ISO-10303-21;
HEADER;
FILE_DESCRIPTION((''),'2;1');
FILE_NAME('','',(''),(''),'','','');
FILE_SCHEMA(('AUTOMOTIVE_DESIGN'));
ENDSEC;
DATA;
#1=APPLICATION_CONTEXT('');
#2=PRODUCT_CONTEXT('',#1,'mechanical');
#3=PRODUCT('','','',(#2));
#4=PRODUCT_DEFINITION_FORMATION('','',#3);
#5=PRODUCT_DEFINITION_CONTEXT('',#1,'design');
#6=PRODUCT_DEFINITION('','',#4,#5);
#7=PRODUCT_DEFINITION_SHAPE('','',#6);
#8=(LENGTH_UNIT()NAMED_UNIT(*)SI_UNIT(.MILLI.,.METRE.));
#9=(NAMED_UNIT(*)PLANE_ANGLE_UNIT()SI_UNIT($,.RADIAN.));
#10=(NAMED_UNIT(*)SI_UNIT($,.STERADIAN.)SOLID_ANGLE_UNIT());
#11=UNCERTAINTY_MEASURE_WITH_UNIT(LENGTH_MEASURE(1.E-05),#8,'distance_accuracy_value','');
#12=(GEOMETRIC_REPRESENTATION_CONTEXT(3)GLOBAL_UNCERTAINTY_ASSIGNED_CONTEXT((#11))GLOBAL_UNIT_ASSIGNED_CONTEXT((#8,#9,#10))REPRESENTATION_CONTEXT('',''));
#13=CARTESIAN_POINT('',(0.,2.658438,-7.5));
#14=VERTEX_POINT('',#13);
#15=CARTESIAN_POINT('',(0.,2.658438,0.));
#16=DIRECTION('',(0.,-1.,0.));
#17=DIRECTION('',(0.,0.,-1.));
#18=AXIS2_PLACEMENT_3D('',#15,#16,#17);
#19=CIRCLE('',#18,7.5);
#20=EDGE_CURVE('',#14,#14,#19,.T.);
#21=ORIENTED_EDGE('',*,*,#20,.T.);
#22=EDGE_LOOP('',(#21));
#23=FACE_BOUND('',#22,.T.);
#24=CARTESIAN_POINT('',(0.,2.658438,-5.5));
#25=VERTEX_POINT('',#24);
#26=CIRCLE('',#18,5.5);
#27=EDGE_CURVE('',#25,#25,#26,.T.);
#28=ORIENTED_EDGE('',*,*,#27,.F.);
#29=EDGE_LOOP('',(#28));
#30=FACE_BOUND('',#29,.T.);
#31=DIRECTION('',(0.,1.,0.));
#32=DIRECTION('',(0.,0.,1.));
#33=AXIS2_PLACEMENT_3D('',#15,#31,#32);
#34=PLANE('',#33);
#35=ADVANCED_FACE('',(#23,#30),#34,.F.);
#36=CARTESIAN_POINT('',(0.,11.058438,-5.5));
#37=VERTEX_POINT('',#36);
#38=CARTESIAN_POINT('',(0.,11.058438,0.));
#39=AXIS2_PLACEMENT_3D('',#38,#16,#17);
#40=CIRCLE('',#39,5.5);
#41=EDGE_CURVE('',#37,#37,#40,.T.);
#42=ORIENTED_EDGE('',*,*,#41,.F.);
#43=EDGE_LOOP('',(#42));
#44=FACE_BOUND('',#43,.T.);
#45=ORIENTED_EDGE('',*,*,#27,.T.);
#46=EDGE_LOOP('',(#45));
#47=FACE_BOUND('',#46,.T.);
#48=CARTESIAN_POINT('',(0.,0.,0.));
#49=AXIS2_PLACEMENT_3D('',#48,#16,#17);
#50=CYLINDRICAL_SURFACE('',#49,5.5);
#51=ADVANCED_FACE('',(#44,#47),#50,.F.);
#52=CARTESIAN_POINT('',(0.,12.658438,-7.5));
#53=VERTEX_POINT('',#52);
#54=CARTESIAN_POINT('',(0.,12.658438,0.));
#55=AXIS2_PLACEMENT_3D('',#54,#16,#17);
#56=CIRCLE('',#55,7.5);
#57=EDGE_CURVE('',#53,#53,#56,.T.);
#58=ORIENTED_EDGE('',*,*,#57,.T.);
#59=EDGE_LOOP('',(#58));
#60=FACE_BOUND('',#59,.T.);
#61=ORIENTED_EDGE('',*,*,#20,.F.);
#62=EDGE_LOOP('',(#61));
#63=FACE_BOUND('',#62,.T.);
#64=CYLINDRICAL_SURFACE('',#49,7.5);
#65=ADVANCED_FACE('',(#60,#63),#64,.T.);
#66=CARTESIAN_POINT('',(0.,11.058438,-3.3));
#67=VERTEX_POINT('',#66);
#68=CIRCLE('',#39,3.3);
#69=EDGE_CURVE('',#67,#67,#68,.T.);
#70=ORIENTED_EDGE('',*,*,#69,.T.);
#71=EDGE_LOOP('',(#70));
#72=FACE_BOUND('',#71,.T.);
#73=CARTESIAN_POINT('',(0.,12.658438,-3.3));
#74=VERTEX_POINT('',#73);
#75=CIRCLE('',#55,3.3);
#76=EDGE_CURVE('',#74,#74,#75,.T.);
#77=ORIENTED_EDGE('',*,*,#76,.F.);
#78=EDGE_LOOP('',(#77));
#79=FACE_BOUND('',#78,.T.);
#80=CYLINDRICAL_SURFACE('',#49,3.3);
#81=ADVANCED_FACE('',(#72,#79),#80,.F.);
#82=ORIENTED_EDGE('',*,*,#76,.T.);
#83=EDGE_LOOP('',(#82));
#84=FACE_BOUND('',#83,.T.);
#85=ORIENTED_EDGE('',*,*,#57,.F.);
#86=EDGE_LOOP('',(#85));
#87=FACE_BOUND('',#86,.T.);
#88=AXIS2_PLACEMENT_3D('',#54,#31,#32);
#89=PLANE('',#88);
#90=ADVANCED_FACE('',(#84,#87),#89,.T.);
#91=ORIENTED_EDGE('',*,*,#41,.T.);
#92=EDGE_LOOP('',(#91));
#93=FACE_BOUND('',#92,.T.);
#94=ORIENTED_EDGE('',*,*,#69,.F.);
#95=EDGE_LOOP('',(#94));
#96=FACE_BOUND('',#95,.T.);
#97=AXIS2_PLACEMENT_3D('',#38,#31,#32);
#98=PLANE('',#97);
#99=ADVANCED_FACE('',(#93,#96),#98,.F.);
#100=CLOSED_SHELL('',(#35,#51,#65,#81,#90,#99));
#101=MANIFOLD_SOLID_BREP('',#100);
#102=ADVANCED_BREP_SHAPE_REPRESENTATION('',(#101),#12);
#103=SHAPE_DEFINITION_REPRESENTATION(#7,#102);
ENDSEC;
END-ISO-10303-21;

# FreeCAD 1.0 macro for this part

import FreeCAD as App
import Part
import Sketcher
from FreeCAD import Vector


def add_polygon(sketch, points):
    """Adds a closed chain of lines whose ends are joined by coincident constraints."""
    first, n = sketch.GeometryCount, len(points)
    for a, b in zip(points, points[1:] + points[:1]):
        sketch.addGeometry(Part.LineSegment(App.Vector(*a, 0), App.Vector(*b, 0)), False)
    for i in range(n):
        sketch.addConstraint(Sketcher.Constraint("Coincident", first + i, 2, first + (i + 1) % n, 1))

doc = App.newDocument("Part")
params = doc.addObject("Spreadsheet::Sheet", "Params")
for row, (alias, value) in enumerate([
    ("sketch1_width", "2 mm"),
    ("sketch1_height", "10 mm"),
    ("sketch1_width2", "2.2 mm"),
    ("sketch1_height2", "8.4 mm"),
    ("revolution_angle", "360 deg"),
], start=1):
    params.set(f"A{row}", alias)
    params.set(f"B{row}", "=" + value)
    params.setAlias(f"B{row}", alias)

body = doc.addObject("PartDesign::Body", "Body")

# Sketch on XY plane
sketch1 = body.newObject("Sketcher::SketchObject", "Sketch")
sketch1.AttachmentSupport = (doc.getObject("XY_Plane"), [""])
sketch1.MapMode = "FlatFace"
add_polygon(sketch1, [(-7.5, 12.7), (-7.5, 2.7), (-5.5, 2.7), (-5.5, 11.1), (-3.3, 11.1), (-3.3, 12.7)])  # lines 0-5
sketch1.addConstraint([
    Sketcher.Constraint("Vertical", 0),
    Sketcher.Constraint("Horizontal", 1),
    Sketcher.Constraint("Vertical", 2),
    Sketcher.Constraint("Horizontal", 3),
    Sketcher.Constraint("Vertical", 4),
    Sketcher.Constraint("Horizontal", 5),
    Sketcher.Constraint("DistanceX", 1, 1, 1, 2, 2.0),
    Sketcher.Constraint("DistanceY", 0, 2, 0, 1, 10.0),
    Sketcher.Constraint("DistanceX", 3, 1, 3, 2, 2.2),
    Sketcher.Constraint("DistanceY", 2, 1, 2, 2, 8.4),
    Sketcher.Constraint("DistanceX", 0, 2, -1, 1, 7.5),
    Sketcher.Constraint("DistanceY", -1, 1, 0, 2, 2.658438),
])
sketch1.setExpression("Constraints[12]", "Params.sketch1_width")
sketch1.setExpression("Constraints[13]", "Params.sketch1_height")
sketch1.setExpression("Constraints[14]", "Params.sketch1_width2")
sketch1.setExpression("Constraints[15]", "Params.sketch1_height2")
revolution = body.newObject("PartDesign::Revolution", "Revolution")
revolution.Profile = sketch1
revolution.ReferenceAxis = (sketch1, ["V_Axis"])
revolution.setExpression("Angle", "Params.revolution_angle")

doc.recompute()
